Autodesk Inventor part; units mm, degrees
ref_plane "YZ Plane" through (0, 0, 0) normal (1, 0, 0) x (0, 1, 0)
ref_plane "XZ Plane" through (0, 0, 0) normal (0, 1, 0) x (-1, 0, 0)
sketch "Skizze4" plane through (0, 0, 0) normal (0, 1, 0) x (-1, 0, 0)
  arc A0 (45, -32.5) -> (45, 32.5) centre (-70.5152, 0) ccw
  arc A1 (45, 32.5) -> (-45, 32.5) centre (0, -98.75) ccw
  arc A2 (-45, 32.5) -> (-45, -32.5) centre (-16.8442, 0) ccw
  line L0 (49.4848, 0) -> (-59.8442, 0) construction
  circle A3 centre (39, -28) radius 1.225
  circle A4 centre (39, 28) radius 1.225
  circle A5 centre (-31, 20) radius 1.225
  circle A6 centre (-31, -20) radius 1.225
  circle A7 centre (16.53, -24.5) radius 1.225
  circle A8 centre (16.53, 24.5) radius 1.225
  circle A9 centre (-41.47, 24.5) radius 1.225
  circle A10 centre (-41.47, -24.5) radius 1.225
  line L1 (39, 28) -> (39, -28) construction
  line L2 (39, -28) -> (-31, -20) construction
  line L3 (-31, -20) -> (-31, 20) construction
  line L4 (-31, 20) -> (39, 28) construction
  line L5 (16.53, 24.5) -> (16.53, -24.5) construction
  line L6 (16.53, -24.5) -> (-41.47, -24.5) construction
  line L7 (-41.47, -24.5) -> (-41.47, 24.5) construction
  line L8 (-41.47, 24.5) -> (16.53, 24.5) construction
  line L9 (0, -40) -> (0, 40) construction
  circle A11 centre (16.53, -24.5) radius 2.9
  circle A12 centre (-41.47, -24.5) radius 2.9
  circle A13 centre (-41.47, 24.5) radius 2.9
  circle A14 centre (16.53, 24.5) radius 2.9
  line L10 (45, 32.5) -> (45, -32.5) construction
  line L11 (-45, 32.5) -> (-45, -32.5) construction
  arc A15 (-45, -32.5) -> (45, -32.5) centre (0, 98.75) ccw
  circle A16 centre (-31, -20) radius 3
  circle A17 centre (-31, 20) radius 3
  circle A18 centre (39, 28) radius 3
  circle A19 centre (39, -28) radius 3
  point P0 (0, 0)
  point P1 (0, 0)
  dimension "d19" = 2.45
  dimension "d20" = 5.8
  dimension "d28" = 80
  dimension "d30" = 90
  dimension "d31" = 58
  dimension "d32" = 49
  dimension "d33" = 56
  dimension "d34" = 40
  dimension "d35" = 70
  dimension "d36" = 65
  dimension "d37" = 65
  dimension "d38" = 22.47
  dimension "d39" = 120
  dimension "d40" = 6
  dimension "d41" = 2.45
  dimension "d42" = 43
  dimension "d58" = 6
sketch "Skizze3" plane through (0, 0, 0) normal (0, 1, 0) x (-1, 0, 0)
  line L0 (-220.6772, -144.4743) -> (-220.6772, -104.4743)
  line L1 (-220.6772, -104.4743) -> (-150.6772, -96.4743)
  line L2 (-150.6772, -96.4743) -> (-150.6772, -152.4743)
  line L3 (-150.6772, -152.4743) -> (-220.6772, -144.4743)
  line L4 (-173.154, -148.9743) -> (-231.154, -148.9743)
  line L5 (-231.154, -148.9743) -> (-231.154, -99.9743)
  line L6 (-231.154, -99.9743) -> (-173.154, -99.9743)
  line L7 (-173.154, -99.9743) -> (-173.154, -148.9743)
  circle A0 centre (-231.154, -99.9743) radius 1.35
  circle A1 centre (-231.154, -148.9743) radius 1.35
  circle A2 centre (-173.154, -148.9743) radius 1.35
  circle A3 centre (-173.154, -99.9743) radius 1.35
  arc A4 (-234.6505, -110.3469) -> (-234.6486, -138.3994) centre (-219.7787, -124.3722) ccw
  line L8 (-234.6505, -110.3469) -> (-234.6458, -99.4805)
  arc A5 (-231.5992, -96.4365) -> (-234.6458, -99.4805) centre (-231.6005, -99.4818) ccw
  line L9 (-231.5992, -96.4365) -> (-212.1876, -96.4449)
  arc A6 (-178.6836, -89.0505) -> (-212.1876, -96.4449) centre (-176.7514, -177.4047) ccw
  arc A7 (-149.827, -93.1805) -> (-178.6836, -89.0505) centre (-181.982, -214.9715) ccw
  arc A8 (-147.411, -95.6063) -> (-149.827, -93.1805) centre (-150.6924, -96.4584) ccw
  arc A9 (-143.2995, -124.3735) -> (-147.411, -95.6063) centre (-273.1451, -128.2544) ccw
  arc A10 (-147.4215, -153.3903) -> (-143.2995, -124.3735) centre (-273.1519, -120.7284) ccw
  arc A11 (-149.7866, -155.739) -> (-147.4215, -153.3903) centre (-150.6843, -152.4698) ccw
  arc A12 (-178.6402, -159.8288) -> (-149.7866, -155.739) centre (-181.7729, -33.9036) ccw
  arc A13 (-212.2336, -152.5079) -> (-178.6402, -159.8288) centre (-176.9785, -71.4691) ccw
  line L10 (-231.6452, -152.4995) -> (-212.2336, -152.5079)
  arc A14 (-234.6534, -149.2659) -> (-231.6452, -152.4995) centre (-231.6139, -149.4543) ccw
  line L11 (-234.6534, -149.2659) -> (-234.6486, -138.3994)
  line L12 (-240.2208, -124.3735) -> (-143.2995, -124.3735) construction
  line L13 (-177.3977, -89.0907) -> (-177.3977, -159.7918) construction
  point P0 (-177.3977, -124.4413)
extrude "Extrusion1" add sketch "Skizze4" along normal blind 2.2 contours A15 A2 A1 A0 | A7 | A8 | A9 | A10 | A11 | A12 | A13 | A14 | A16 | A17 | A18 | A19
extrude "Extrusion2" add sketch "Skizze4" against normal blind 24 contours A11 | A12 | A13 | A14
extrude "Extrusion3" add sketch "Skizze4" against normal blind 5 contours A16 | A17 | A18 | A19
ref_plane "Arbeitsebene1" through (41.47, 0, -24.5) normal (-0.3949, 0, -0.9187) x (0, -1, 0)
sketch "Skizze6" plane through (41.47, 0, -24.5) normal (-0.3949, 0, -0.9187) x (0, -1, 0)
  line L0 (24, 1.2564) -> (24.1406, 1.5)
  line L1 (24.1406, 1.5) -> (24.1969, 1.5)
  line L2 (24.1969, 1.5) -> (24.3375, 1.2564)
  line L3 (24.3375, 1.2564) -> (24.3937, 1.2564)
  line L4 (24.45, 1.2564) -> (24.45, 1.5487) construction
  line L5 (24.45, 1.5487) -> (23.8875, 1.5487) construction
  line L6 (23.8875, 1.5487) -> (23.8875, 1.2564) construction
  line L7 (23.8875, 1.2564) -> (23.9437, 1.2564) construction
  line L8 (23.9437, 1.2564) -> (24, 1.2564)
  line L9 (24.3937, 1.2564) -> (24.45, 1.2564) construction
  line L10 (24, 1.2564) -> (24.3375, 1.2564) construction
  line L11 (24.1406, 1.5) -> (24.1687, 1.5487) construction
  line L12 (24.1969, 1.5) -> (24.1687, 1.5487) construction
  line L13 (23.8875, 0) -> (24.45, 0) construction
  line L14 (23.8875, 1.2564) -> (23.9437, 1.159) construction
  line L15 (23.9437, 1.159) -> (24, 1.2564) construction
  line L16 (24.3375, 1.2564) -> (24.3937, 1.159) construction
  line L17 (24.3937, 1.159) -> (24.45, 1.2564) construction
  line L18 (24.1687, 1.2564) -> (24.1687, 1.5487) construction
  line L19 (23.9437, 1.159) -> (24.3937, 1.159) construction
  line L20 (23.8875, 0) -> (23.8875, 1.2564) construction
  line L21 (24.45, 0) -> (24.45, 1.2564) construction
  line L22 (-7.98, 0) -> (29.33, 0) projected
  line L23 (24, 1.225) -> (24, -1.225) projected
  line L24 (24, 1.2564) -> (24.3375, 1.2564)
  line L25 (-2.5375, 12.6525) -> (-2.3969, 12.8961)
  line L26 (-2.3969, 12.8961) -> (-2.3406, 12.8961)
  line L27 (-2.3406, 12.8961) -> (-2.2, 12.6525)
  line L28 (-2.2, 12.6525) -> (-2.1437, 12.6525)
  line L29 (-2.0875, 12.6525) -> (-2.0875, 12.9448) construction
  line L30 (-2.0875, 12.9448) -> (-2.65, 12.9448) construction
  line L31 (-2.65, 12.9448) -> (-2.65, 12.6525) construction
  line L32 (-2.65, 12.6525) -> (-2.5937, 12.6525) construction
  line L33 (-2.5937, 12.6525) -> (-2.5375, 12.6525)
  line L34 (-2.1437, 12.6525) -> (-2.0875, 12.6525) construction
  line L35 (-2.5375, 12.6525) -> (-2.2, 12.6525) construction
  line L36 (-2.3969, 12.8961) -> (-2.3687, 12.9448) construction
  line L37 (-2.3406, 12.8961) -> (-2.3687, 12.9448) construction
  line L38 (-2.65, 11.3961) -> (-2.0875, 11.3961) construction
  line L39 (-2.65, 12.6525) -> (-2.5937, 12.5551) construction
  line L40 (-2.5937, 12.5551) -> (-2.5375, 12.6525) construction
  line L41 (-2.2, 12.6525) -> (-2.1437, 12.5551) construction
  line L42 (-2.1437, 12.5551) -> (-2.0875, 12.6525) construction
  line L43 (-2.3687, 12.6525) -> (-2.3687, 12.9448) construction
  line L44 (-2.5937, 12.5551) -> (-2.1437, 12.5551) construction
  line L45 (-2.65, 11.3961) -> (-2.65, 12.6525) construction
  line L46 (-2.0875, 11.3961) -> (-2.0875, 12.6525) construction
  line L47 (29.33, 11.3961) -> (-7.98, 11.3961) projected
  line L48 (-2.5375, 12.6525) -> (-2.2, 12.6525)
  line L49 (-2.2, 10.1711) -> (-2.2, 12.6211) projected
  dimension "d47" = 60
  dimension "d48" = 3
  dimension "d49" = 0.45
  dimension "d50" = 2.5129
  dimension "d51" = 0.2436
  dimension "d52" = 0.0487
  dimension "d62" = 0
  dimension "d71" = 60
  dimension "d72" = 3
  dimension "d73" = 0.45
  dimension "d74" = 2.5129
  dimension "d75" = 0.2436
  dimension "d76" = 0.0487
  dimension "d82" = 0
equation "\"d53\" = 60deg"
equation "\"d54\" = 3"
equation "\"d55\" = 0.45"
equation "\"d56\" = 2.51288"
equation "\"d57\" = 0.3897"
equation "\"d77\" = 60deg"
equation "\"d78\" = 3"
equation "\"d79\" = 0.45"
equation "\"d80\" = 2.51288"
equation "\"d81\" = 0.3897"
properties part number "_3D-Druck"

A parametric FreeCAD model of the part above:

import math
import FreeCAD as App
import Part
import Sketcher

V = App.Vector
Q = App.Units.Quantity

doc = App.newDocument("Part")
body = doc.addObject("PartDesign::Body", "Body")

# Sketch on XZ plane
sketch1 = body.newObject("Sketcher::SketchObject", "Sketch")
sketch1.AttachmentSupport = (doc.getObject("XZ_Plane"), [""])
sketch1.MapMode = "FlatFace"
sketch1.addGeometry([
    Part.ArcOfCircle(Part.Circle(V(0, 98.8, 0), V(0, 0, 1), 138.8), math.radians(-109), math.radians(-71)),  # 0
    Part.ArcOfCircle(Part.Circle(V(70.5, 0, 0), V(0, 0, 1), 120), math.radians(164), math.radians(196)),  # 1
    Part.ArcOfCircle(Part.Circle(V(0, -98.8, 0), V(0, 0, 1), 138.8), math.radians(71), math.radians(109)),  # 2
    Part.ArcOfCircle(Part.Circle(V(16.8, 0, 0), V(0, 0, 1), 43), math.radians(-49), math.radians(49)),  # 3
    Part.Circle(V(31, -20, 0), V(0, 0, 1), 1.2),  # 4
    Part.Circle(V(-39, -28, 0), V(0, 0, 1), 1.2),  # 5
    Part.Circle(V(31, 20, 0), V(0, 0, 1), 1.2),  # 6
    Part.Circle(V(-39, 28, 0), V(0, 0, 1), 1.2),  # 7
], False)
sketch1.addConstraint([
    Sketcher.Constraint("Coincident", 0, 1, 1, 2),
    Sketcher.Constraint("Coincident", 1, 1, 2, 2),
    Sketcher.Constraint("Coincident", 2, 1, 3, 2),
    Sketcher.Constraint("Coincident", 3, 1, 0, 2),
    Sketcher.Constraint("Equal", 0, 2),
    Sketcher.Constraint("Equal", 4, 5),
    Sketcher.Constraint("Equal", 5, 6),
    Sketcher.Constraint("Equal", 6, 7),
    Sketcher.Constraint("Symmetric", 0, 3, 2, 3, -1, 1),
    Sketcher.Constraint("Symmetric", 1, 1, 2, 1, -2),
    Sketcher.Constraint("Symmetric", 4, 3, 6, 3, -1),
    Sketcher.Constraint("Symmetric", 5, 3, 7, 3, -1),
    Sketcher.Constraint("PointOnObject", 1, 3, -1),
    Sketcher.Constraint("PointOnObject", 3, 3, -1),
    Sketcher.Constraint("Radius", 1, Q("120 mm")),
    Sketcher.Constraint("Radius", 3, Q("43 mm")),
    Sketcher.Constraint("Diameter", 4, Q("2.45 mm")),
    Sketcher.Constraint("DistanceX", 5, 3, 4, 3, Q("70 mm")),
    Sketcher.Constraint("DistanceY", 4, 3, 6, 3, Q("40 mm")),
    Sketcher.Constraint("DistanceY", 5, 3, 7, 3, Q("56 mm")),
    Sketcher.Constraint("DistanceX", 0, 1, 5, 3, Q("6 mm")),
    Sketcher.Constraint("DistanceY", 0, 1, 1, 1, Q("65 mm")),
    Sketcher.Constraint("Radius", 0, Q("138.75 mm")),
    Sketcher.Constraint("DistanceX", -1, 1, 4, 3, Q("31 mm")),
])
pad1 = body.newObject("PartDesign::Pad", "Pad")
pad1.Profile = sketch1
pad1.Length = 2.2
pad1.Reversed = True

# Sketch on XZ plane
sketch2 = body.newObject("Sketcher::SketchObject", "Sketch001")
sketch2.AttachmentSupport = (doc.getObject("XZ_Plane"), [""])
sketch2.MapMode = "FlatFace"
sketch2.addGeometry([
    Part.Circle(V(-16.5, -24.5, 0), V(0, 0, 1), 2.9),  # 0
    Part.Circle(V(-16.5, -24.5, 0), V(0, 0, 1), 1.2),  # 1
    Part.Circle(V(41.5, -24.5, 0), V(0, 0, 1), 2.9),  # 2
    Part.Circle(V(41.5, -24.5, 0), V(0, 0, 1), 1.2),  # 3
    Part.Circle(V(41.5, 24.5, 0), V(0, 0, 1), 2.9),  # 4
    Part.Circle(V(41.5, 24.5, 0), V(0, 0, 1), 1.2),  # 5
    Part.Circle(V(-16.5, 24.5, 0), V(0, 0, 1), 2.9),  # 6
    Part.Circle(V(-16.5, 24.5, 0), V(0, 0, 1), 1.2),  # 7
], False)
sketch2.addConstraint([
    Sketcher.Constraint("Coincident", 1, 3, 0, 3),
    Sketcher.Constraint("Coincident", 3, 3, 2, 3),
    Sketcher.Constraint("Coincident", 5, 3, 4, 3),
    Sketcher.Constraint("Coincident", 7, 3, 6, 3),
    Sketcher.Constraint("Equal", 0, 2),
    Sketcher.Constraint("Equal", 1, 3),
    Sketcher.Constraint("Equal", 2, 4),
    Sketcher.Constraint("Equal", 3, 5),
    Sketcher.Constraint("Equal", 4, 6),
    Sketcher.Constraint("Equal", 5, 7),
    Sketcher.Constraint("Symmetric", 2, 3, 4, 3, -1),
    Sketcher.Constraint("Symmetric", 0, 3, 6, 3, -1),
    Sketcher.Constraint("Horizontal", 1, 3, 2, 3),
    Sketcher.Constraint("Diameter", 0, Q("5.8 mm")),
    Sketcher.Constraint("Diameter", 1, Q("2.45 mm")),
    Sketcher.Constraint("DistanceX", 0, 3, 2, 3, Q("58 mm")),
    Sketcher.Constraint("DistanceY", 2, 3, 4, 3, Q("49 mm")),
    Sketcher.Constraint("DistanceX", 0, 3, -1, 1, Q("16.53 mm")),
])
pad2 = body.newObject("PartDesign::Pad", "Pad001")
pad2.Profile = sketch2
pad2.Length = 24

# Sketch on XZ plane
sketch3 = body.newObject("Sketcher::SketchObject", "Sketch002")
sketch3.AttachmentSupport = (doc.getObject("XZ_Plane"), [""])
sketch3.MapMode = "FlatFace"
sketch3.addGeometry([
    Part.Circle(V(31, -20, 0), V(0, 0, 1), 3),  # 0
    Part.Circle(V(31, -20, 0), V(0, 0, 1), 1.2),  # 1
    Part.Circle(V(31, 20, 0), V(0, 0, 1), 3),  # 2
    Part.Circle(V(31, 20, 0), V(0, 0, 1), 1.2),  # 3
    Part.Circle(V(-39, 28, 0), V(0, 0, 1), 3),  # 4
    Part.Circle(V(-39, 28, 0), V(0, 0, 1), 1.2),  # 5
    Part.Circle(V(-39, -28, 0), V(0, 0, 1), 3),  # 6
    Part.Circle(V(-39, -28, 0), V(0, 0, 1), 1.2),  # 7
], False)
sketch3.addConstraint([
    Sketcher.Constraint("Coincident", 1, 3, 0, 3),
    Sketcher.Constraint("Coincident", 3, 3, 2, 3),
    Sketcher.Constraint("Coincident", 5, 3, 4, 3),
    Sketcher.Constraint("Coincident", 7, 3, 6, 3),
    Sketcher.Constraint("Equal", 0, 2),
    Sketcher.Constraint("Equal", 1, 3),
    Sketcher.Constraint("Equal", 2, 4),
    Sketcher.Constraint("Equal", 3, 5),
    Sketcher.Constraint("Equal", 4, 6),
    Sketcher.Constraint("Equal", 5, 7),
    Sketcher.Constraint("Symmetric", 0, 3, 2, 3, -1),
    Sketcher.Constraint("Symmetric", 4, 3, 6, 3, -1),
    Sketcher.Constraint("Diameter", 0, Q("6 mm")),
    Sketcher.Constraint("Diameter", 1, Q("2.45 mm")),
    Sketcher.Constraint("DistanceY", 0, 3, 2, 3, Q("40 mm")),
    Sketcher.Constraint("DistanceX", 4, 3, 2, 3, Q("70 mm")),
    Sketcher.Constraint("DistanceY", 6, 3, 4, 3, Q("56 mm")),
    Sketcher.Constraint("DistanceX", -1, 1, 0, 3, Q("31 mm")),
])
pad3 = body.newObject("PartDesign::Pad", "Pad002")
pad3.Profile = sketch3
pad3.Length = 5

doc.recompute()
